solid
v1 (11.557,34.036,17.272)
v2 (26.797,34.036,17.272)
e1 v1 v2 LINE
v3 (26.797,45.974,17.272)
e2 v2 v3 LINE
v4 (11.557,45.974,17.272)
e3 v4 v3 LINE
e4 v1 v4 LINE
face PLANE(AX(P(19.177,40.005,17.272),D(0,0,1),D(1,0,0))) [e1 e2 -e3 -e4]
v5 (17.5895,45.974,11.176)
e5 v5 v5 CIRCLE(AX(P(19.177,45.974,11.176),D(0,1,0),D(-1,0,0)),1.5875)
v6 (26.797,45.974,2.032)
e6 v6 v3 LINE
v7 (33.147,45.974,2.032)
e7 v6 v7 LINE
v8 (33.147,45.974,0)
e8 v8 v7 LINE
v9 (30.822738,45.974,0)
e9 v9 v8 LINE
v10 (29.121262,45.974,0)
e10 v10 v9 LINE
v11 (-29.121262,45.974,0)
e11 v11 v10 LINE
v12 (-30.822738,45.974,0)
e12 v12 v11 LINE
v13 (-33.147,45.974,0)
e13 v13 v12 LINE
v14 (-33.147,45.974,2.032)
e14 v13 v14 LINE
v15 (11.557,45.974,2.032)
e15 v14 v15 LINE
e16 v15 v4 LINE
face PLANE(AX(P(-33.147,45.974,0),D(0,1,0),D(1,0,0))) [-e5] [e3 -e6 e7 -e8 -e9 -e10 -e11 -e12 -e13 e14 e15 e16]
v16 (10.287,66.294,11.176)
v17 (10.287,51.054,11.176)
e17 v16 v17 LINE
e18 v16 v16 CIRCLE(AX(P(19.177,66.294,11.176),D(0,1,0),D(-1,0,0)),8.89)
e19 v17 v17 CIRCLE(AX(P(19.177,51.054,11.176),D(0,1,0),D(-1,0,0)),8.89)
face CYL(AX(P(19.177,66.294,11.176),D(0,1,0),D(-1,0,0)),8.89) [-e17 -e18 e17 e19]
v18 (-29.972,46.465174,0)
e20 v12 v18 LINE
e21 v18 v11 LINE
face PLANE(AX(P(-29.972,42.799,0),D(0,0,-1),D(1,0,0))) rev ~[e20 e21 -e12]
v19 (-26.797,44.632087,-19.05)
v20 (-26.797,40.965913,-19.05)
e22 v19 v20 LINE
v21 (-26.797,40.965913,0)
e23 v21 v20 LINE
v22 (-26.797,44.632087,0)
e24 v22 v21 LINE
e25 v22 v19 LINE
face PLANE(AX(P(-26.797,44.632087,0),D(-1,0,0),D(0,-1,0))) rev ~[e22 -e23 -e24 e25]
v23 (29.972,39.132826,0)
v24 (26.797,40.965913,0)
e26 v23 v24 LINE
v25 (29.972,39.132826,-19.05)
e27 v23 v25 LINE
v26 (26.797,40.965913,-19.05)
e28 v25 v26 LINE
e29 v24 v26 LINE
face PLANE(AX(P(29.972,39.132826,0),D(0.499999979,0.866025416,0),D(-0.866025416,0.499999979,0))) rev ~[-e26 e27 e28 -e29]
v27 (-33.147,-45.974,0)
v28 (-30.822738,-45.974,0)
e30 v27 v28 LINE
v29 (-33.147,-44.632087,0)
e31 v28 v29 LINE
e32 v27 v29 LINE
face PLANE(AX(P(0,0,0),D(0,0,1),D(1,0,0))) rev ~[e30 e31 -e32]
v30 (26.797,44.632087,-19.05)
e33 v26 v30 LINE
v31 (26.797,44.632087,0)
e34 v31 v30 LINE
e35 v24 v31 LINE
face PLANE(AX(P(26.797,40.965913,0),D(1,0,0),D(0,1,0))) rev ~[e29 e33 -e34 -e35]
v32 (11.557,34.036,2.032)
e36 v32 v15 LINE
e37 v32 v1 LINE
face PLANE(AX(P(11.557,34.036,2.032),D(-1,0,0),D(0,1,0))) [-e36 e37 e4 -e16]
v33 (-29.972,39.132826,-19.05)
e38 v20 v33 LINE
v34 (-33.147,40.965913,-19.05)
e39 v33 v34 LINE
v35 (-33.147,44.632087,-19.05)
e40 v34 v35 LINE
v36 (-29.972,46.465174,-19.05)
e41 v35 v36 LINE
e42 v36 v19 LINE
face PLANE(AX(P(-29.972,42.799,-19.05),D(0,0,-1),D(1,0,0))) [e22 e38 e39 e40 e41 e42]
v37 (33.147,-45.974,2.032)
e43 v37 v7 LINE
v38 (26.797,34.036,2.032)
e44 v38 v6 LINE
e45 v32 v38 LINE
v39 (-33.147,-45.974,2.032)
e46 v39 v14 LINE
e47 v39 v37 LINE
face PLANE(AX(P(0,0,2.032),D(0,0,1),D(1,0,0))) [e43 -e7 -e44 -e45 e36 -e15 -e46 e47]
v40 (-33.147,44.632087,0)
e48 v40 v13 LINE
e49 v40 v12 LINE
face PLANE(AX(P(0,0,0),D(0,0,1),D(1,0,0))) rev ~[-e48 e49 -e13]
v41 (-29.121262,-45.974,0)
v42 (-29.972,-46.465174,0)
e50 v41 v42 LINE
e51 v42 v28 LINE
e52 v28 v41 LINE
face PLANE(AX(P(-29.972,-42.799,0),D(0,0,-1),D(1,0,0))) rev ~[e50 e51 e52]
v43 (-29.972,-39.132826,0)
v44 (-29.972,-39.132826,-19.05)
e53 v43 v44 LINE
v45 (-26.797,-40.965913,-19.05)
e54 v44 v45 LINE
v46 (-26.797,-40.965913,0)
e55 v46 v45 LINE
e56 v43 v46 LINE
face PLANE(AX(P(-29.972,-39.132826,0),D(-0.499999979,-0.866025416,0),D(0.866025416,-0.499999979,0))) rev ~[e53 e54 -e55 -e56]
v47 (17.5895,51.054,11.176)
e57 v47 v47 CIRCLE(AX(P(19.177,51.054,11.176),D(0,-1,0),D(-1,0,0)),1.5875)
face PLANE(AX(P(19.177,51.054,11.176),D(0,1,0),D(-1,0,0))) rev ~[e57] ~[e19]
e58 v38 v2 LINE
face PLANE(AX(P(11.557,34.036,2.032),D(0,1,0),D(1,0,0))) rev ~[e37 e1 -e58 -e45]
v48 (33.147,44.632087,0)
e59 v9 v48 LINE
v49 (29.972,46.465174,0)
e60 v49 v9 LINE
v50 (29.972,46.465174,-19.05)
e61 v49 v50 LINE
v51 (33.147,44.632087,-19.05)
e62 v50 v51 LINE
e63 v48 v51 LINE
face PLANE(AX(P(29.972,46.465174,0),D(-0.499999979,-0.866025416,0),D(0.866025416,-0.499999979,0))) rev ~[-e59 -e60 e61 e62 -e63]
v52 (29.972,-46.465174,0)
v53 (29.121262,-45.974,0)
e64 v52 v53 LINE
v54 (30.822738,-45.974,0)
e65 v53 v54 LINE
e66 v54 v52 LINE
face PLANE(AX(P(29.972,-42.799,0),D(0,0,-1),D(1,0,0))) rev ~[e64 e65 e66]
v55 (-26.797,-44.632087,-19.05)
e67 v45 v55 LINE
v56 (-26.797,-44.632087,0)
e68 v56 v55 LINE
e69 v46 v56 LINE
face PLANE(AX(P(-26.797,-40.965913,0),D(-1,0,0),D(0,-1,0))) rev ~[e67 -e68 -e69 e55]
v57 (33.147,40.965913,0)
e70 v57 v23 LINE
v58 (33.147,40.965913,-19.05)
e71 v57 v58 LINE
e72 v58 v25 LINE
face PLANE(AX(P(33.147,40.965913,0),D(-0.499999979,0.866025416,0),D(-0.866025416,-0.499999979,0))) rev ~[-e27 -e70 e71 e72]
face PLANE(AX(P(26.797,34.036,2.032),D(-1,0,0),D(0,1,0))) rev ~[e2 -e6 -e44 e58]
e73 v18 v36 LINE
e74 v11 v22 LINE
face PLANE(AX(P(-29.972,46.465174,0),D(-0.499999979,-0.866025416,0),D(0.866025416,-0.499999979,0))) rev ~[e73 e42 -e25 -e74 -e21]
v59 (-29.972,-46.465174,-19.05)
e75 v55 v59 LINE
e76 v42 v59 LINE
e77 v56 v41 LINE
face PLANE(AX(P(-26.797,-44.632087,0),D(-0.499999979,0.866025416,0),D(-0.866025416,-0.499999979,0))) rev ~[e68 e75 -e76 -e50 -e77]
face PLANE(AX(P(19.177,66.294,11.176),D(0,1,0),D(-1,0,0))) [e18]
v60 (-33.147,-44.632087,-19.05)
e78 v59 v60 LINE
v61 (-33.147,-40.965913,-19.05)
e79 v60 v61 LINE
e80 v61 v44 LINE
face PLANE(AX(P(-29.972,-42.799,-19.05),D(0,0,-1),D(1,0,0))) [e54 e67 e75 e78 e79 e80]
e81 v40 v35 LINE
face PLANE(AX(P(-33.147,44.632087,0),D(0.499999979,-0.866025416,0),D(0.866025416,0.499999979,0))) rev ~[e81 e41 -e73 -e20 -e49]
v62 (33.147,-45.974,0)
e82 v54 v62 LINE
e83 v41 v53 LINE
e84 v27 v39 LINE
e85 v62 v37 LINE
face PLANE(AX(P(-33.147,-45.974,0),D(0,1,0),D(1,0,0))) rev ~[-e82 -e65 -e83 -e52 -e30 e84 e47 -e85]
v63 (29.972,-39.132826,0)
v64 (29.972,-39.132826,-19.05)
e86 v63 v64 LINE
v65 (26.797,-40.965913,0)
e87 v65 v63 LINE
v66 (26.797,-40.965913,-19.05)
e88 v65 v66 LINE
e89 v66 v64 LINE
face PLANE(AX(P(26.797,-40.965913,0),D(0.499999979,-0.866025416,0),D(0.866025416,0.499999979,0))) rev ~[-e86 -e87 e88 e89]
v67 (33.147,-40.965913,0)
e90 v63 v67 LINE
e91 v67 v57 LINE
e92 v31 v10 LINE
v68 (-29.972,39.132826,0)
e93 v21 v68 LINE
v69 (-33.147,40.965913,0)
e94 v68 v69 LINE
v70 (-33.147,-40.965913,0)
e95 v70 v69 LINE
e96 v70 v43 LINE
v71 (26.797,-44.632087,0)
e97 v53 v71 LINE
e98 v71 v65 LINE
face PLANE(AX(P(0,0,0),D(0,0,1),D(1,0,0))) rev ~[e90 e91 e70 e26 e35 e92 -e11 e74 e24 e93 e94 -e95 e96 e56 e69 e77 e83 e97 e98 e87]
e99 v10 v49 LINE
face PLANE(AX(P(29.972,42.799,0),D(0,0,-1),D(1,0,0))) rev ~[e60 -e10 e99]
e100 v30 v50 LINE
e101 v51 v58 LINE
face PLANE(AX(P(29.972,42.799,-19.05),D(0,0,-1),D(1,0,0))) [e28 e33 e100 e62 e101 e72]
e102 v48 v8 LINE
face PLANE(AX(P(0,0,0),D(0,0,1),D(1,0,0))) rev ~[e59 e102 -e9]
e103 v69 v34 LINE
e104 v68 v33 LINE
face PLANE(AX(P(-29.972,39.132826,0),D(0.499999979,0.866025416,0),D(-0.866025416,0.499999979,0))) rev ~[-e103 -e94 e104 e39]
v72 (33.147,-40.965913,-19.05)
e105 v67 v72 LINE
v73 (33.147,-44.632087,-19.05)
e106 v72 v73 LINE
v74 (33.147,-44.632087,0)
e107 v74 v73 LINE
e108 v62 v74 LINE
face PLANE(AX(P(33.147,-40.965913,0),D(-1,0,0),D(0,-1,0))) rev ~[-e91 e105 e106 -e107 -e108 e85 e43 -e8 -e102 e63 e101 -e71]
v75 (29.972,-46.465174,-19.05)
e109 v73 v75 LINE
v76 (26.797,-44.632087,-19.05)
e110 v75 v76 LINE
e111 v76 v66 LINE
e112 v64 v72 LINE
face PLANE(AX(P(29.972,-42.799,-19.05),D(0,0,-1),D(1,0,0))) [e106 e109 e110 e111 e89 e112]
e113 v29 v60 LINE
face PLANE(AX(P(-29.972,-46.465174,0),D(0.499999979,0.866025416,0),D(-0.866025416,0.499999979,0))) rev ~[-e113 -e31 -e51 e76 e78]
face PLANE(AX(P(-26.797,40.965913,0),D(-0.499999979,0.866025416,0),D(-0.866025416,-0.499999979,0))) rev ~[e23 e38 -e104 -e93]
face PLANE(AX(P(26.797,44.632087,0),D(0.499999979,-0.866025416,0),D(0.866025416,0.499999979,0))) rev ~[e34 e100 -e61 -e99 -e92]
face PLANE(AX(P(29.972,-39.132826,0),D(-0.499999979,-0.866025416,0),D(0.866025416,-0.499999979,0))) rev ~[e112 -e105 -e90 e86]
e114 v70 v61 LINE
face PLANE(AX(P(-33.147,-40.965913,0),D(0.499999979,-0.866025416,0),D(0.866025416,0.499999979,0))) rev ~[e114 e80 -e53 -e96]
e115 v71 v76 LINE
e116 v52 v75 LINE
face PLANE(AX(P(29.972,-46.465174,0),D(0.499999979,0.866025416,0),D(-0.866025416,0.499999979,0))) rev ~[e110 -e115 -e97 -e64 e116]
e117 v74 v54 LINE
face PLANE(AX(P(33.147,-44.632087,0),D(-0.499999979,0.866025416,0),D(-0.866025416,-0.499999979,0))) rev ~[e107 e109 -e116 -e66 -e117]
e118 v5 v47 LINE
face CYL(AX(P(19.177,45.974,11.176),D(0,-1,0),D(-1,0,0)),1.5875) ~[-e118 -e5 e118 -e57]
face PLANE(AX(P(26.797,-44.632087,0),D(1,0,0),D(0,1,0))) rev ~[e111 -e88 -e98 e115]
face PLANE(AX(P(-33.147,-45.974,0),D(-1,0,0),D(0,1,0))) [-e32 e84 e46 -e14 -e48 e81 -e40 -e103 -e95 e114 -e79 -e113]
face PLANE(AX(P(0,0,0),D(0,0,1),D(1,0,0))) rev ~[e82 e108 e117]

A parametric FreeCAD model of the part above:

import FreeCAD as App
import Part
import Sketcher
from FreeCAD import Vector
Q = App.Units.Quantity

doc = App.newDocument("Part")
body = doc.addObject("PartDesign::Body", "Body")

sketch1 = body.newObject("Sketcher::SketchObject", "Sketch")
sketch1.AttachmentSupport = (doc.getObject("XY_Plane"), [""])
sketch1.MapMode = "FlatFace"
sketch1.addGeometry([
    Part.LineSegment(Vector(-33, 46, 0), Vector(-33, -46, 0)),
    Part.LineSegment(Vector(-33, -46, 0), Vector(33, -46, 0)),
    Part.LineSegment(Vector(33, -46, 0), Vector(33, 46, 0)),
    Part.LineSegment(Vector(33, 46, 0), Vector(-33, 46, 0)),
], False)
sketch1.addConstraint([
    Sketcher.Constraint("Coincident", 0, 2, 1, 1),
    Sketcher.Constraint("Coincident", 1, 2, 2, 1),
    Sketcher.Constraint("Coincident", 2, 2, 3, 1),
    Sketcher.Constraint("Coincident", 3, 2, 0, 1),
    Sketcher.Constraint("Vertical", 0),
    Sketcher.Constraint("Horizontal", 1),
    Sketcher.Constraint("Vertical", 2),
    Sketcher.Constraint("Horizontal", 3),
    Sketcher.Constraint("Symmetric", 0, 2, 2, 2, -1, 1),
    Sketcher.Constraint("DistanceX", 1, 1, 1, 2, Q("2.61 in")),
    Sketcher.Constraint("DistanceY", 0, 2, 0, 1, Q("3.62 in")),
])
pad1 = body.newObject("PartDesign::Pad", "Pad")
pad1.Profile = sketch1
pad1.Length = Q("0.08 in")

sketch2 = body.newObject("Sketcher::SketchObject", "Sketch001")
sketch2.AttachmentSupport = (doc.getObject("XY_Plane"), [""])
sketch2.MapMode = "FlatFace"
sketch2.AttachmentOffset = App.Placement(Vector(0, 0, 0.08 * 25.4), App.Rotation())
sketch2.addGeometry([
    Part.LineSegment(Vector(12, 46, 0), Vector(12, 34, 0)),
    Part.LineSegment(Vector(12, 34, 0), Vector(27, 34, 0)),
    Part.LineSegment(Vector(27, 34, 0), Vector(27, 46, 0)),
    Part.LineSegment(Vector(27, 46, 0), Vector(12, 46, 0)),
], False)
sketch2.addConstraint([
    Sketcher.Constraint("Coincident", 0, 2, 1, 1),
    Sketcher.Constraint("Coincident", 1, 2, 2, 1),
    Sketcher.Constraint("Coincident", 2, 2, 3, 1),
    Sketcher.Constraint("Coincident", 3, 2, 0, 1),
    Sketcher.Constraint("Vertical", 0),
    Sketcher.Constraint("Horizontal", 1),
    Sketcher.Constraint("Vertical", 2),
    Sketcher.Constraint("Horizontal", 3),
    Sketcher.Constraint("DistanceX", 1, 1, 1, 2, Q("0.6 in")),
    Sketcher.Constraint("DistanceY", 0, 2, 0, 1, Q("0.47 in")),
    Sketcher.Constraint("DistanceY", -1, 1, 0, 2, Q("1.34 in")),
    Sketcher.Constraint("DistanceX", -1, 1, 0, 2, Q("0.455 in")),
])
pad2 = body.newObject("PartDesign::Pad", "Pad001")
pad2.Profile = sketch2
pad2.Length = Q("0.6 in")

sketch3 = body.newObject("Sketcher::SketchObject", "Sketch002")
sketch3.AttachmentSupport = (doc.getObject("XZ_Plane"), [""])
sketch3.MapMode = "FlatFace"
sketch3.AttachmentOffset = App.Placement(Vector(0, 0, -1.81 * 25.4), App.Rotation())
sketch3.addGeometry(Part.Circle(Vector(19.2, 11.2, 0), Vector(0, 0, 1), 1.6), False)
sketch3.addConstraint([
    Sketcher.Constraint("Diameter", 0, Q("0.125 in")),
    Sketcher.Constraint("DistanceY", -1, 1, 0, 3, Q("0.44 in")),
    Sketcher.Constraint("DistanceX", -1, 1, 0, 3, Q("0.755 in")),
])
pad3 = body.newObject("PartDesign::Pad", "Pad002")
pad3.Profile = sketch3
pad3.Length = Q("0.8 in")
pad3.Reversed = True

sketch4 = body.newObject("Sketcher::SketchObject", "Sketch003")
sketch4.AttachmentSupport = (doc.getObject("XZ_Plane"), [""])
sketch4.MapMode = "FlatFace"
sketch4.AttachmentOffset = App.Placement(Vector(0, 0, -2.61 * 25.4), App.Rotation())
sketch4.addGeometry(Part.Circle(Vector(19, 11, 0), Vector(0, 0, 1), 9), False)
sketch4.addConstraint([
    Sketcher.Constraint("Diameter", 0, Q("0.7 in")),
    Sketcher.Constraint("DistanceY", -1, 1, 0, 3, Q("0.44 in")),
    Sketcher.Constraint("DistanceX", -1, 1, 0, 3, Q("0.755 in")),
])
pad4 = body.newObject("PartDesign::Pad", "Pad003")
pad4.Profile = sketch4
pad4.Length = Q("0.6 in")

sketch5 = body.newObject("Sketcher::SketchObject", "Sketch004")
sketch5.AttachmentSupport = (doc.getObject("XY_Plane"), [""])
sketch5.MapMode = "FlatFace"
sketch5.addGeometry([
    Part.LineSegment(Vector(33.1, -41, 0), Vector(33.1, -44.6, 0)),
    Part.LineSegment(Vector(33.1, -44.6, 0), Vector(30, -46.5, 0)),
    Part.LineSegment(Vector(30, -46.5, 0), Vector(26.8, -44.6, 0)),
    Part.LineSegment(Vector(26.8, -44.6, 0), Vector(26.8, -41, 0)),
    Part.LineSegment(Vector(26.8, -41, 0), Vector(30, -39.1, 0)),
    Part.LineSegment(Vector(30, -39.1, 0), Vector(33.1, -41, 0)),
    Part.LineSegment(Vector(-30, -46.5, 0), Vector(-33.1, -44.6, 0)),
    Part.LineSegment(Vector(-33.1, -44.6, 0), Vector(-33.1, -41, 0)),
    Part.LineSegment(Vector(-33.1, -41, 0), Vector(-30, -39.1, 0)),
    Part.LineSegment(Vector(-30, -39.1, 0), Vector(-26.8, -41, 0)),
    Part.LineSegment(Vector(-26.8, -41, 0), Vector(-26.8, -44.6, 0)),
    Part.LineSegment(Vector(-26.8, -44.6, 0), Vector(-30, -46.5, 0)),
    Part.LineSegment(Vector(26.8, 44.6, 0), Vector(30, 46.5, 0)),
    Part.LineSegment(Vector(30, 46.5, 0), Vector(33.1, 44.6, 0)),
    Part.LineSegment(Vector(33.1, 44.6, 0), Vector(33.1, 41, 0)),
    Part.LineSegment(Vector(33.1, 41, 0), Vector(30, 39.1, 0)),
    Part.LineSegment(Vector(30, 39.1, 0), Vector(26.8, 41, 0)),
    Part.LineSegment(Vector(26.8, 41, 0), Vector(26.8, 44.6, 0)),
    Part.LineSegment(Vector(-33.1, 41, 0), Vector(-33.1, 44.6, 0)),
    Part.LineSegment(Vector(-33.1, 44.6, 0), Vector(-30, 46.5, 0)),
    Part.LineSegment(Vector(-30, 46.5, 0), Vector(-26.8, 44.6, 0)),
    Part.LineSegment(Vector(-26.8, 44.6, 0), Vector(-26.8, 41, 0)),
    Part.LineSegment(Vector(-26.8, 41, 0), Vector(-30, 39.1, 0)),
    Part.LineSegment(Vector(-30, 39.1, 0), Vector(-33.1, 41, 0)),
], False)
sketch5.addConstraint([
    Sketcher.Constraint("Coincident", 0, 2, 1, 1),
    Sketcher.Constraint("Coincident", 1, 2, 2, 1),
    Sketcher.Constraint("Coincident", 2, 2, 3, 1),
    Sketcher.Constraint("Coincident", 3, 2, 4, 1),
    Sketcher.Constraint("Coincident", 4, 2, 5, 1),
    Sketcher.Constraint("Coincident", 5, 2, 0, 1),
    Sketcher.Constraint("Coincident", 6, 2, 7, 1),
    Sketcher.Constraint("Coincident", 7, 2, 8, 1),
    Sketcher.Constraint("Coincident", 8, 2, 9, 1),
    Sketcher.Constraint("Coincident", 9, 2, 10, 1),
    Sketcher.Constraint("Coincident", 10, 2, 11, 1),
    Sketcher.Constraint("Coincident", 11, 2, 6, 1),
    Sketcher.Constraint("Coincident", 12, 2, 13, 1),
    Sketcher.Constraint("Coincident", 13, 2, 14, 1),
    Sketcher.Constraint("Coincident", 14, 2, 15, 1),
    Sketcher.Constraint("Coincident", 15, 2, 16, 1),
    Sketcher.Constraint("Coincident", 16, 2, 17, 1),
    Sketcher.Constraint("Coincident", 17, 2, 12, 1),
    Sketcher.Constraint("Coincident", 18, 2, 19, 1),
    Sketcher.Constraint("Coincident", 19, 2, 20, 1),
    Sketcher.Constraint("Coincident", 20, 2, 21, 1),
    Sketcher.Constraint("Coincident", 21, 2, 22, 1),
    Sketcher.Constraint("Coincident", 22, 2, 23, 1),
    Sketcher.Constraint("Coincident", 23, 2, 18, 1),
    Sketcher.Constraint("Vertical", 0),
    Sketcher.Constraint("Vertical", 3),
    Sketcher.Constraint("Vertical", 7),
    Sketcher.Constraint("Vertical", 10),
    Sketcher.Constraint("Vertical", 14),
    Sketcher.Constraint("Vertical", 17),
    Sketcher.Constraint("Vertical", 18),
    Sketcher.Constraint("Vertical", 21),
    Sketcher.Constraint("Symmetric", 11, 2, 12, 2, -1, 1),
    Sketcher.Constraint("Symmetric", 6, 2, 13, 2, -1, 1),
    Sketcher.Constraint("Symmetric", 8, 2, 15, 2, -1, 1),
    Sketcher.Constraint("Symmetric", 9, 2, 16, 2, -1, 1),
    Sketcher.Constraint("Symmetric", 0, 2, 18, 2, -1, 1),
    Sketcher.Constraint("Symmetric", 1, 2, 19, 2, -1, 1),
    Sketcher.Constraint("Symmetric", 2, 2, 20, 2, -1, 1),
    Sketcher.Constraint("Symmetric", 4, 2, 22, 2, -1, 1),
    Sketcher.Constraint("Symmetric", 0, 2, 6, 2, -2),
    Sketcher.Constraint("Symmetric", 4, 2, 8, 2, -2),
    Sketcher.Constraint("Symmetric", 3, 2, 9, 2, -2),
    Sketcher.Constraint("Symmetric", 1, 2, 11, 2, -2),
    Sketcher.Constraint("Parallel", 1, 4),
    Sketcher.Constraint("Parallel", 2, 5),
    Sketcher.Constraint("Parallel", 5, 6),
    Sketcher.Constraint("Parallel", 4, 8),
    Sketcher.Constraint("Parallel", 8, 11),
    Sketcher.Constraint("Parallel", 11, 12),
    Sketcher.Constraint("Parallel", 12, 15),
    Sketcher.Constraint("Parallel", 19, 22),
    Sketcher.Constraint("Parallel", 20, 23),
    Sketcher.Constraint("Horizontal", 0, 2, 2, 2),
    Sketcher.Constraint("Horizontal", 3, 2, 5, 2),
    Sketcher.Constraint("Angle", 1, Q("-150.000001 deg")),
    Sketcher.Constraint("DistanceX", -1, 1, 1, 2, Q("1.18 in")),
    Sketcher.Constraint("DistanceX", 2, 2, 0, 2, Q("0.25 in")),
    Sketcher.Constraint("DistanceY", 4, 2, 12, 2, Q("3.37 in")),
    Sketcher.Constraint("DistanceY", 0, 2, 0, 1, 3.666174),
])
pad5 = body.newObject("PartDesign::Pad", "Pad004")
pad5.Profile = sketch5
pad5.Length = Q("0.75 in")
pad5.Reversed = True

doc.recompute()
